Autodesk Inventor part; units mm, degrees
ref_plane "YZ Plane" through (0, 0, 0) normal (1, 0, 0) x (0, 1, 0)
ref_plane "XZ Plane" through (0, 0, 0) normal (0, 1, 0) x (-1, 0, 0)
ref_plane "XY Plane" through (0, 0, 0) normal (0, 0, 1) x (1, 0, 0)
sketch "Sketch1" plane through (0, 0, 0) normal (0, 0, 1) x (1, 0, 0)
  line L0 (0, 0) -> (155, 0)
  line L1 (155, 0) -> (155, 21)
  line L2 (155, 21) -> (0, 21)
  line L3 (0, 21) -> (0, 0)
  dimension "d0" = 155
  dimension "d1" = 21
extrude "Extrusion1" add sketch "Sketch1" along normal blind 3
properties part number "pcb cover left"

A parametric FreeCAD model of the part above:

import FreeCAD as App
import Part
import Sketcher
from FreeCAD import Vector
Q = App.Units.Quantity


def add_polygon(sketch, points):
    """Adds a closed chain of lines whose ends are joined by coincident constraints."""
    first, n = sketch.GeometryCount, len(points)
    for a, b in zip(points, points[1:] + points[:1]):
        sketch.addGeometry(Part.LineSegment(App.Vector(*a, 0), App.Vector(*b, 0)), False)
    for i in range(n):
        sketch.addConstraint(Sketcher.Constraint("Coincident", first + i, 2, first + (i + 1) % n, 1))

doc = App.newDocument("Part")
body = doc.addObject("PartDesign::Body", "Body")

sketch1 = doc.addObject("Sketcher::SketchObject", "Sketch")
body.addObject(sketch1)
sketch1.AttachmentSupport = (doc.XY_Plane, [""])
sketch1.MapMode = "FlatFace"
add_polygon(sketch1, [(0, 21), (0, 0), (155, 0), (155, 21)])
sketch1.addConstraint([
    Sketcher.Constraint("Vertical", 0),
    Sketcher.Constraint("Horizontal", 1),
    Sketcher.Constraint("Vertical", 2),
    Sketcher.Constraint("Horizontal", 3),
    Sketcher.Constraint("Coincident", 0, 2, -1, 1),
    Sketcher.Constraint("DistanceX", 1, 1, 1, 2, Q("155 mm")),
    Sketcher.Constraint("DistanceY", 0, 2, 0, 1, Q("21 mm")),
])
pad1 = doc.addObject("PartDesign::Pad", "Pad")
body.addObject(pad1)
pad1.Profile = sketch1
pad1.Length = 3

doc.recompute()
